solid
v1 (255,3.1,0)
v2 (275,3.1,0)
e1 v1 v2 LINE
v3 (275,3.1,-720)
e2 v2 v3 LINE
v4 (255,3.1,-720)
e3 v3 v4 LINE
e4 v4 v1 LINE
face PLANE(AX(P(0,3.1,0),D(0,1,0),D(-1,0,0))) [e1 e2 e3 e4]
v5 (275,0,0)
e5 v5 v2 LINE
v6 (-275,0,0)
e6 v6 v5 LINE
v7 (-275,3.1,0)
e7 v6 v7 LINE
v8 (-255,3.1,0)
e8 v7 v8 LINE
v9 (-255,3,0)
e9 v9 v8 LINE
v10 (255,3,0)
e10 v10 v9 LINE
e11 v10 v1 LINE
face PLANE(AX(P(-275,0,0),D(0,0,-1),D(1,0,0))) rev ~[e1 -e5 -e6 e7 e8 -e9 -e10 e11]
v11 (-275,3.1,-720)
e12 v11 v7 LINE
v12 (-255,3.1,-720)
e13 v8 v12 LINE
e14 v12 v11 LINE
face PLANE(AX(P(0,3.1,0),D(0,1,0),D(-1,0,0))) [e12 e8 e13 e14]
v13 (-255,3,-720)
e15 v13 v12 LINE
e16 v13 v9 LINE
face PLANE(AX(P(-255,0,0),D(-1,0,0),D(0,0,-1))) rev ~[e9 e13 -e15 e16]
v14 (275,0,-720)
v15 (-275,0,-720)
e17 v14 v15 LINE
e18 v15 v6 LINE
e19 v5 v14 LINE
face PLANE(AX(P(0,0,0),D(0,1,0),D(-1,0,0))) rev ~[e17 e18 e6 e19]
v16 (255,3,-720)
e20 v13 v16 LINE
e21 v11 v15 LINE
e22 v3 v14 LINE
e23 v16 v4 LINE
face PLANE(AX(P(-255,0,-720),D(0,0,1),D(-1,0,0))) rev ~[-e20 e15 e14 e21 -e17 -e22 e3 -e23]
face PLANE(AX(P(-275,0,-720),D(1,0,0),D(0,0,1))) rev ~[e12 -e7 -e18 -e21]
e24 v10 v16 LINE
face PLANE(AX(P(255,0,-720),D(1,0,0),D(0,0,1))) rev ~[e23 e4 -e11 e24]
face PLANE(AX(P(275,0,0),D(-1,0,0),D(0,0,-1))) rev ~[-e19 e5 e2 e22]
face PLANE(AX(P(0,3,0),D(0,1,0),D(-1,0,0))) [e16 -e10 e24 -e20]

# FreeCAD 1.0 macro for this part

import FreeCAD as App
import Part
import Sketcher

doc = App.newDocument("Part")
body = doc.addObject("PartDesign::Body", "Body")

# Sketch on XZ plane
sketch1 = body.newObject("Sketcher::SketchObject", "Sketch")
sketch1.AttachmentSupport = (doc.getObject("XZ_Plane"), [""])
sketch1.MapMode = "FlatFace"
sketch1.addGeometry([
    Part.LineSegment(App.Vector(-275, -720, 0), App.Vector(-275, 0, 0)),
    Part.LineSegment(App.Vector(-275, 0, 0), App.Vector(275, 0, 0)),
    Part.LineSegment(App.Vector(275, 0, 0), App.Vector(275, -720, 0)),
    Part.LineSegment(App.Vector(275, -720, 0), App.Vector(-275, -720, 0)),
], False)
sketch1.addConstraint([
    Sketcher.Constraint("Coincident", 0, 2, 1, 1),
    Sketcher.Constraint("Coincident", 1, 2, 2, 1),
    Sketcher.Constraint("Coincident", 2, 2, 3, 1),
    Sketcher.Constraint("Coincident", 3, 2, 0, 1),
    Sketcher.Constraint("Vertical", 0),
    Sketcher.Constraint("Horizontal", 1),
    Sketcher.Constraint("Vertical", 2),
    Sketcher.Constraint("Horizontal", 3),
    Sketcher.Constraint("Symmetric", 0, 2, 1, 2, -1, 1),
    Sketcher.Constraint("DistanceX", 1, 1, 1, 2, 550.0),
    Sketcher.Constraint("DistanceY", 0, 1, 0, 2, 720.0),
])
pad1 = body.newObject("PartDesign::Pad", "Pad")
pad1.Profile = sketch1
pad1.Length = 3
pad1.Reversed = True

# Sketch on XZ plane
sketch2 = body.newObject("Sketcher::SketchObject", "Sketch001")
sketch2.AttachmentSupport = (doc.getObject("XZ_Plane"), [""])
sketch2.MapMode = "FlatFace"
sketch2.addGeometry([
    Part.LineSegment(App.Vector(-275, -720, 0), App.Vector(-275, 0, 0)),  # 0
    Part.LineSegment(App.Vector(-275, 0, 0), App.Vector(-255, 0, 0)),  # 1
    Part.LineSegment(App.Vector(-255, 0, 0), App.Vector(-255, -720, 0)),  # 2
    Part.LineSegment(App.Vector(-255, -720, 0), App.Vector(-275, -720, 0)),  # 3
    Part.LineSegment(App.Vector(255, -720, 0), App.Vector(255, 0, 0)),  # 4
    Part.LineSegment(App.Vector(255, 0, 0), App.Vector(275, 0, 0)),  # 5
    Part.LineSegment(App.Vector(275, 0, 0), App.Vector(275, -720, 0)),  # 6
    Part.LineSegment(App.Vector(275, -720, 0), App.Vector(255, -720, 0)),  # 7
], False)
sketch2.addConstraint([
    Sketcher.Constraint("Coincident", 0, 2, 1, 1),
    Sketcher.Constraint("Coincident", 1, 2, 2, 1),
    Sketcher.Constraint("Coincident", 2, 2, 3, 1),
    Sketcher.Constraint("Coincident", 3, 2, 0, 1),
    Sketcher.Constraint("Coincident", 4, 2, 5, 1),
    Sketcher.Constraint("Coincident", 5, 2, 6, 1),
    Sketcher.Constraint("Coincident", 6, 2, 7, 1),
    Sketcher.Constraint("Coincident", 7, 2, 4, 1),
    Sketcher.Constraint("Vertical", 0),
    Sketcher.Constraint("Horizontal", 1),
    Sketcher.Constraint("Vertical", 2),
    Sketcher.Constraint("Horizontal", 3),
    Sketcher.Constraint("Vertical", 4),
    Sketcher.Constraint("Horizontal", 5),
    Sketcher.Constraint("Vertical", 6),
    Sketcher.Constraint("Horizontal", 7),
    Sketcher.Constraint("Symmetric", 1, 2, 4, 2, -1, 1),
    Sketcher.Constraint("Symmetric", 0, 2, 5, 2, -2),
    Sketcher.Constraint("Horizontal", 3, 2, 6, 2),
    Sketcher.Constraint("DistanceX", 1, 1, 1, 2, 20.0),
    Sketcher.Constraint("DistanceY", 0, 1, 0, 2, 720.0),
    Sketcher.Constraint("DistanceX", 0, 2, 5, 2, 550.0),
])
pad2 = body.newObject("PartDesign::Pad", "Pad001")
pad2.Profile = sketch2
pad2.Length = 3.1
pad2.Reversed = True

doc.recompute()
